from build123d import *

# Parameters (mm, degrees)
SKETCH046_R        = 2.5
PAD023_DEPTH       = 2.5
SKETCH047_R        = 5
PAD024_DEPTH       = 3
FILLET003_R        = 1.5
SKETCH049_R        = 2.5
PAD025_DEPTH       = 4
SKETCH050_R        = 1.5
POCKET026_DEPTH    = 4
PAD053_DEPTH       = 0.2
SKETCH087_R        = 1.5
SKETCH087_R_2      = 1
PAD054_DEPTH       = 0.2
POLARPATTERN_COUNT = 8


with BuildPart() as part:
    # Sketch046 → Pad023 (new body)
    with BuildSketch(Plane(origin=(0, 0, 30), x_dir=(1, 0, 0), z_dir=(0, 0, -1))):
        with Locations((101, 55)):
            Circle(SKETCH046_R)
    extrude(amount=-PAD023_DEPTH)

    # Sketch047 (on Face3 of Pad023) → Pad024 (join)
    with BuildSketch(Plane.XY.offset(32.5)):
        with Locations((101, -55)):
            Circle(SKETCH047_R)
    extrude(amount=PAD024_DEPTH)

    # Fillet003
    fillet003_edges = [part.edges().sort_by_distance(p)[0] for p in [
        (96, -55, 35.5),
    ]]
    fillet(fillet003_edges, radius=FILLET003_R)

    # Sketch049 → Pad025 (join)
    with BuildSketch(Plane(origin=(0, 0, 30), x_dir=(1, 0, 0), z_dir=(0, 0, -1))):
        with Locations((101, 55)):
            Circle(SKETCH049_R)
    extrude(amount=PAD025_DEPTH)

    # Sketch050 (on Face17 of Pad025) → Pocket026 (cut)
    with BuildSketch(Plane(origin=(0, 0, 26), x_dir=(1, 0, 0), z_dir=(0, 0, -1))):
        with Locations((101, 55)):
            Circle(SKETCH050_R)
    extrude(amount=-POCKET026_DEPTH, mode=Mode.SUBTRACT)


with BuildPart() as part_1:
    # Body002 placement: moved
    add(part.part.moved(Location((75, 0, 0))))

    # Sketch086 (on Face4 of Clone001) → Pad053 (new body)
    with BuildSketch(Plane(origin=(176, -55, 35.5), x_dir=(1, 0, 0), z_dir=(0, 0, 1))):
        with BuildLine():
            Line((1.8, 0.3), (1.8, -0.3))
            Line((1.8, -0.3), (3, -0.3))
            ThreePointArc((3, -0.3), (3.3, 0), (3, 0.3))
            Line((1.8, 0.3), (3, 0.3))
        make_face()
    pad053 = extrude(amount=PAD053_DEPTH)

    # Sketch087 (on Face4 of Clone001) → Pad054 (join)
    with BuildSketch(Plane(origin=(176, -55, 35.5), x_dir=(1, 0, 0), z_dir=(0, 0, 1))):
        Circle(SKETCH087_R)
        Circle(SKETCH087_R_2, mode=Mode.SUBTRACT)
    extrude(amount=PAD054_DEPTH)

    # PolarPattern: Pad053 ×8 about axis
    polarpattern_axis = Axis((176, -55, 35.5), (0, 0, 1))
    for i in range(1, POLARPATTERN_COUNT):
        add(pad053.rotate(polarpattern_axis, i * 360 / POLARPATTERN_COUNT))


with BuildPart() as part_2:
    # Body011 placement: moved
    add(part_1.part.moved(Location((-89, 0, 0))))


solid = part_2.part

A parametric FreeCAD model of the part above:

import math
import FreeCAD as App
import Part
import Sketcher
from FreeCAD import Vector


def edges_at(feature, points):
    """Names of the edges that pass closest to the given points."""
    edges = feature.Shape.Edges
    near = lambda p: min(range(len(edges)), key=lambda i: edges[i].distToShape(Part.Vertex(*p))[0])
    return sorted({f"Edge{near(p) + 1}" for p in points})

doc = App.newDocument("Part")
body = doc.addObject("PartDesign::Body", "Body")

sketch1 = body.newObject("Sketcher::SketchObject", "Sketch")
sketch1.AttachmentSupport = (doc.getObject("XY_Plane"), [""])
sketch1.MapMode = "FlatFace"
sketch1.AttachmentOffset = App.Placement(Vector(0, 0, 30), App.Rotation())
sketch1.addGeometry(Part.Circle(Vector(101, -55, 0), Vector(0, 0, 1), 2.5), False)
sketch1.addConstraint(Sketcher.Constraint("Diameter", 0, 5.0))
sketch1.addConstraint(Sketcher.Constraint("DistanceX", -1, 1, 0, 3, 101.0))
sketch1.addConstraint(Sketcher.Constraint("DistanceY", 0, 3, -1, 1, 55.0))
pad1 = body.newObject("PartDesign::Pad", "Pad")
pad1.Profile = sketch1
pad1.Length = 2.5

sketch2 = body.newObject("Sketcher::SketchObject", "Sketch001")
sketch2.AttachmentSupport = (doc.getObject("XY_Plane"), [""])
sketch2.MapMode = "FlatFace"
sketch2.AttachmentOffset = App.Placement(Vector(0, 0, 32.5), App.Rotation())
sketch2.addGeometry(Part.Circle(Vector(101, -55, 0), Vector(0, 0, 1), 5), False)
sketch2.addConstraint(Sketcher.Constraint("Diameter", 0, 10.0))
sketch2.addConstraint(Sketcher.Constraint("DistanceX", -1, 1, 0, 3, 101.0))
sketch2.addConstraint(Sketcher.Constraint("DistanceY", 0, 3, -1, 1, 55.0))
pad2 = body.newObject("PartDesign::Pad", "Pad001")
pad2.Profile = sketch2
pad2.Length = 3
doc.recompute()

fillet = body.newObject("PartDesign::Fillet", "Fillet")
fillet.Base = (pad2, edges_at(pad2, [(96, -55, 35.5)]))
fillet.Radius = 1.5

sketch3 = body.newObject("Sketcher::SketchObject", "Sketch002")
sketch3.AttachmentSupport = (doc.getObject("XY_Plane"), [""])
sketch3.MapMode = "FlatFace"
sketch3.AttachmentOffset = App.Placement(Vector(0, 0, 30), App.Rotation())
sketch3.addGeometry(Part.Circle(Vector(101, -55, 0), Vector(0, 0, 1), 2.5), False)
sketch3.addConstraint(Sketcher.Constraint("Diameter", 0, 5.0))
sketch3.addConstraint(Sketcher.Constraint("DistanceX", -1, 1, 0, 3, 101.0))
sketch3.addConstraint(Sketcher.Constraint("DistanceY", 0, 3, -1, 1, 55.0))
pad3 = body.newObject("PartDesign::Pad", "Pad002")
pad3.Profile = sketch3
pad3.Length = 4
pad3.Reversed = True

sketch4 = body.newObject("Sketcher::SketchObject", "Sketch003")
sketch4.AttachmentSupport = (doc.getObject("XY_Plane"), [""])
sketch4.MapMode = "FlatFace"
sketch4.AttachmentOffset = App.Placement(Vector(0, 0, 26), App.Rotation())
sketch4.addGeometry(Part.Circle(Vector(101, -55, 0), Vector(0, 0, 1), 1.5), False)
sketch4.addConstraint(Sketcher.Constraint("Diameter", 0, 3.0))
sketch4.addConstraint(Sketcher.Constraint("DistanceX", -1, 1, 0, 3, 101.0))
sketch4.addConstraint(Sketcher.Constraint("DistanceY", 0, 3, -1, 1, 55.0))
pocket1 = body.newObject("PartDesign::Pocket", "Pocket")
pocket1.Profile = sketch4
pocket1.Length = 4
pocket1.Reversed = True
body2 = doc.addObject("PartDesign::Body", "Body001")
doc.recompute()

body.Placement = App.Placement(Vector(75, 0, 0), App.Rotation(Vector(0, 0, 1), 0))
boolean = body2.newObject("PartDesign::Boolean", "Boolean")
boolean.Type = "Fuse"
boolean.addObjects([body])

sketch5 = body2.newObject("Sketcher::SketchObject", "Sketch004")
sketch5.AttachmentSupport = (doc.getObject("XY_Plane001"), [""])
sketch5.MapMode = "FlatFace"
sketch5.AttachmentOffset = App.Placement(Vector(0, 0, 35.5), App.Rotation())
sketch5.addGeometry(Part.LineSegment(Vector(177.8, -54.7, 0), Vector(177.8, -55.3, 0)), False)
sketch5.addGeometry(Part.LineSegment(Vector(177.8, -55.3, 0), Vector(179, -55.3, 0)), False)
sketch5.addGeometry(Part.ArcOfCircle(Part.Circle(Vector(179, -55, 0), Vector(0, 0, 1), 0.3), math.radians(-90), math.radians(90)), False)
sketch5.addGeometry(Part.LineSegment(Vector(179, -54.7, 0), Vector(177.8, -54.7, 0)), False)
sketch5.addConstraint(Sketcher.Constraint("Coincident", 0, 2, 1, 1))
sketch5.addConstraint(Sketcher.Constraint("Tangent", 1, 2, 2, 1))
sketch5.addConstraint(Sketcher.Constraint("Tangent", 2, 2, 3, 1))
sketch5.addConstraint(Sketcher.Constraint("Coincident", 3, 2, 0, 1))
sketch5.addConstraint(Sketcher.Constraint("Vertical", 0))
sketch5.addConstraint(Sketcher.Constraint("Horizontal", 1))
sketch5.addConstraint(Sketcher.Constraint("Horizontal", 3))
sketch5.addConstraint(Sketcher.Constraint("Radius", 2, 0.3))
sketch5.addConstraint(Sketcher.Constraint("DistanceX", 1, 1, 1, 2, 1.2))
sketch5.addConstraint(Sketcher.Constraint("DistanceX", -1, 1, 2, 3, 179.0))
sketch5.addConstraint(Sketcher.Constraint("DistanceY", 2, 3, -1, 1, 55.0))
pad4 = body2.newObject("PartDesign::Pad", "Pad003")
pad4.Profile = sketch5
pad4.Length = 0.2

sketch6 = body2.newObject("Sketcher::SketchObject", "Sketch005")
sketch6.AttachmentSupport = (doc.getObject("XY_Plane001"), [""])
sketch6.MapMode = "FlatFace"
sketch6.AttachmentOffset = App.Placement(Vector(0, 0, 35.5), App.Rotation())
sketch6.addGeometry(Part.Circle(Vector(176, -55, 0), Vector(0, 0, 1), 1.5), False)
sketch6.addGeometry(Part.Circle(Vector(176, -55, 0), Vector(0, 0, 1), 1), False)
sketch6.addConstraint(Sketcher.Constraint("Coincident", 1, 3, 0, 3))
sketch6.addConstraint(Sketcher.Constraint("Diameter", 0, 3.0))
sketch6.addConstraint(Sketcher.Constraint("Diameter", 1, 2.0))
sketch6.addConstraint(Sketcher.Constraint("DistanceX", -1, 1, 0, 3, 176.0))
sketch6.addConstraint(Sketcher.Constraint("DistanceY", 0, 3, -1, 1, 55.0))
pad5 = body2.newObject("PartDesign::Pad", "Pad004")
pad5.Profile = sketch6
pad5.Length = 0.2
doc.recompute()

datumline = body2.newObject("PartDesign::Line", "DatumLine")
datumline.Placement = App.Placement(Vector(176, -55, 0), App.Rotation(Vector(0, 0, 1), Vector(0, 0, 1)))
polarpattern = body2.newObject("PartDesign::PolarPattern", "PolarPattern")
polarpattern.Originals = [pad4]
polarpattern.Axis = (datumline, [""])
polarpattern.Angle = 360
polarpattern.Occurrences = 8
body2.Tip = polarpattern
body3 = doc.addObject("PartDesign::Body", "Body002")
doc.recompute()

body2.Placement = App.Placement(Vector(-89, 0, 0), App.Rotation(Vector(0, 0, 1), 0))
boolean2 = body3.newObject("PartDesign::Boolean", "Boolean001")
boolean2.Type = "Fuse"
boolean2.addObjects([body2])

doc.recompute()
